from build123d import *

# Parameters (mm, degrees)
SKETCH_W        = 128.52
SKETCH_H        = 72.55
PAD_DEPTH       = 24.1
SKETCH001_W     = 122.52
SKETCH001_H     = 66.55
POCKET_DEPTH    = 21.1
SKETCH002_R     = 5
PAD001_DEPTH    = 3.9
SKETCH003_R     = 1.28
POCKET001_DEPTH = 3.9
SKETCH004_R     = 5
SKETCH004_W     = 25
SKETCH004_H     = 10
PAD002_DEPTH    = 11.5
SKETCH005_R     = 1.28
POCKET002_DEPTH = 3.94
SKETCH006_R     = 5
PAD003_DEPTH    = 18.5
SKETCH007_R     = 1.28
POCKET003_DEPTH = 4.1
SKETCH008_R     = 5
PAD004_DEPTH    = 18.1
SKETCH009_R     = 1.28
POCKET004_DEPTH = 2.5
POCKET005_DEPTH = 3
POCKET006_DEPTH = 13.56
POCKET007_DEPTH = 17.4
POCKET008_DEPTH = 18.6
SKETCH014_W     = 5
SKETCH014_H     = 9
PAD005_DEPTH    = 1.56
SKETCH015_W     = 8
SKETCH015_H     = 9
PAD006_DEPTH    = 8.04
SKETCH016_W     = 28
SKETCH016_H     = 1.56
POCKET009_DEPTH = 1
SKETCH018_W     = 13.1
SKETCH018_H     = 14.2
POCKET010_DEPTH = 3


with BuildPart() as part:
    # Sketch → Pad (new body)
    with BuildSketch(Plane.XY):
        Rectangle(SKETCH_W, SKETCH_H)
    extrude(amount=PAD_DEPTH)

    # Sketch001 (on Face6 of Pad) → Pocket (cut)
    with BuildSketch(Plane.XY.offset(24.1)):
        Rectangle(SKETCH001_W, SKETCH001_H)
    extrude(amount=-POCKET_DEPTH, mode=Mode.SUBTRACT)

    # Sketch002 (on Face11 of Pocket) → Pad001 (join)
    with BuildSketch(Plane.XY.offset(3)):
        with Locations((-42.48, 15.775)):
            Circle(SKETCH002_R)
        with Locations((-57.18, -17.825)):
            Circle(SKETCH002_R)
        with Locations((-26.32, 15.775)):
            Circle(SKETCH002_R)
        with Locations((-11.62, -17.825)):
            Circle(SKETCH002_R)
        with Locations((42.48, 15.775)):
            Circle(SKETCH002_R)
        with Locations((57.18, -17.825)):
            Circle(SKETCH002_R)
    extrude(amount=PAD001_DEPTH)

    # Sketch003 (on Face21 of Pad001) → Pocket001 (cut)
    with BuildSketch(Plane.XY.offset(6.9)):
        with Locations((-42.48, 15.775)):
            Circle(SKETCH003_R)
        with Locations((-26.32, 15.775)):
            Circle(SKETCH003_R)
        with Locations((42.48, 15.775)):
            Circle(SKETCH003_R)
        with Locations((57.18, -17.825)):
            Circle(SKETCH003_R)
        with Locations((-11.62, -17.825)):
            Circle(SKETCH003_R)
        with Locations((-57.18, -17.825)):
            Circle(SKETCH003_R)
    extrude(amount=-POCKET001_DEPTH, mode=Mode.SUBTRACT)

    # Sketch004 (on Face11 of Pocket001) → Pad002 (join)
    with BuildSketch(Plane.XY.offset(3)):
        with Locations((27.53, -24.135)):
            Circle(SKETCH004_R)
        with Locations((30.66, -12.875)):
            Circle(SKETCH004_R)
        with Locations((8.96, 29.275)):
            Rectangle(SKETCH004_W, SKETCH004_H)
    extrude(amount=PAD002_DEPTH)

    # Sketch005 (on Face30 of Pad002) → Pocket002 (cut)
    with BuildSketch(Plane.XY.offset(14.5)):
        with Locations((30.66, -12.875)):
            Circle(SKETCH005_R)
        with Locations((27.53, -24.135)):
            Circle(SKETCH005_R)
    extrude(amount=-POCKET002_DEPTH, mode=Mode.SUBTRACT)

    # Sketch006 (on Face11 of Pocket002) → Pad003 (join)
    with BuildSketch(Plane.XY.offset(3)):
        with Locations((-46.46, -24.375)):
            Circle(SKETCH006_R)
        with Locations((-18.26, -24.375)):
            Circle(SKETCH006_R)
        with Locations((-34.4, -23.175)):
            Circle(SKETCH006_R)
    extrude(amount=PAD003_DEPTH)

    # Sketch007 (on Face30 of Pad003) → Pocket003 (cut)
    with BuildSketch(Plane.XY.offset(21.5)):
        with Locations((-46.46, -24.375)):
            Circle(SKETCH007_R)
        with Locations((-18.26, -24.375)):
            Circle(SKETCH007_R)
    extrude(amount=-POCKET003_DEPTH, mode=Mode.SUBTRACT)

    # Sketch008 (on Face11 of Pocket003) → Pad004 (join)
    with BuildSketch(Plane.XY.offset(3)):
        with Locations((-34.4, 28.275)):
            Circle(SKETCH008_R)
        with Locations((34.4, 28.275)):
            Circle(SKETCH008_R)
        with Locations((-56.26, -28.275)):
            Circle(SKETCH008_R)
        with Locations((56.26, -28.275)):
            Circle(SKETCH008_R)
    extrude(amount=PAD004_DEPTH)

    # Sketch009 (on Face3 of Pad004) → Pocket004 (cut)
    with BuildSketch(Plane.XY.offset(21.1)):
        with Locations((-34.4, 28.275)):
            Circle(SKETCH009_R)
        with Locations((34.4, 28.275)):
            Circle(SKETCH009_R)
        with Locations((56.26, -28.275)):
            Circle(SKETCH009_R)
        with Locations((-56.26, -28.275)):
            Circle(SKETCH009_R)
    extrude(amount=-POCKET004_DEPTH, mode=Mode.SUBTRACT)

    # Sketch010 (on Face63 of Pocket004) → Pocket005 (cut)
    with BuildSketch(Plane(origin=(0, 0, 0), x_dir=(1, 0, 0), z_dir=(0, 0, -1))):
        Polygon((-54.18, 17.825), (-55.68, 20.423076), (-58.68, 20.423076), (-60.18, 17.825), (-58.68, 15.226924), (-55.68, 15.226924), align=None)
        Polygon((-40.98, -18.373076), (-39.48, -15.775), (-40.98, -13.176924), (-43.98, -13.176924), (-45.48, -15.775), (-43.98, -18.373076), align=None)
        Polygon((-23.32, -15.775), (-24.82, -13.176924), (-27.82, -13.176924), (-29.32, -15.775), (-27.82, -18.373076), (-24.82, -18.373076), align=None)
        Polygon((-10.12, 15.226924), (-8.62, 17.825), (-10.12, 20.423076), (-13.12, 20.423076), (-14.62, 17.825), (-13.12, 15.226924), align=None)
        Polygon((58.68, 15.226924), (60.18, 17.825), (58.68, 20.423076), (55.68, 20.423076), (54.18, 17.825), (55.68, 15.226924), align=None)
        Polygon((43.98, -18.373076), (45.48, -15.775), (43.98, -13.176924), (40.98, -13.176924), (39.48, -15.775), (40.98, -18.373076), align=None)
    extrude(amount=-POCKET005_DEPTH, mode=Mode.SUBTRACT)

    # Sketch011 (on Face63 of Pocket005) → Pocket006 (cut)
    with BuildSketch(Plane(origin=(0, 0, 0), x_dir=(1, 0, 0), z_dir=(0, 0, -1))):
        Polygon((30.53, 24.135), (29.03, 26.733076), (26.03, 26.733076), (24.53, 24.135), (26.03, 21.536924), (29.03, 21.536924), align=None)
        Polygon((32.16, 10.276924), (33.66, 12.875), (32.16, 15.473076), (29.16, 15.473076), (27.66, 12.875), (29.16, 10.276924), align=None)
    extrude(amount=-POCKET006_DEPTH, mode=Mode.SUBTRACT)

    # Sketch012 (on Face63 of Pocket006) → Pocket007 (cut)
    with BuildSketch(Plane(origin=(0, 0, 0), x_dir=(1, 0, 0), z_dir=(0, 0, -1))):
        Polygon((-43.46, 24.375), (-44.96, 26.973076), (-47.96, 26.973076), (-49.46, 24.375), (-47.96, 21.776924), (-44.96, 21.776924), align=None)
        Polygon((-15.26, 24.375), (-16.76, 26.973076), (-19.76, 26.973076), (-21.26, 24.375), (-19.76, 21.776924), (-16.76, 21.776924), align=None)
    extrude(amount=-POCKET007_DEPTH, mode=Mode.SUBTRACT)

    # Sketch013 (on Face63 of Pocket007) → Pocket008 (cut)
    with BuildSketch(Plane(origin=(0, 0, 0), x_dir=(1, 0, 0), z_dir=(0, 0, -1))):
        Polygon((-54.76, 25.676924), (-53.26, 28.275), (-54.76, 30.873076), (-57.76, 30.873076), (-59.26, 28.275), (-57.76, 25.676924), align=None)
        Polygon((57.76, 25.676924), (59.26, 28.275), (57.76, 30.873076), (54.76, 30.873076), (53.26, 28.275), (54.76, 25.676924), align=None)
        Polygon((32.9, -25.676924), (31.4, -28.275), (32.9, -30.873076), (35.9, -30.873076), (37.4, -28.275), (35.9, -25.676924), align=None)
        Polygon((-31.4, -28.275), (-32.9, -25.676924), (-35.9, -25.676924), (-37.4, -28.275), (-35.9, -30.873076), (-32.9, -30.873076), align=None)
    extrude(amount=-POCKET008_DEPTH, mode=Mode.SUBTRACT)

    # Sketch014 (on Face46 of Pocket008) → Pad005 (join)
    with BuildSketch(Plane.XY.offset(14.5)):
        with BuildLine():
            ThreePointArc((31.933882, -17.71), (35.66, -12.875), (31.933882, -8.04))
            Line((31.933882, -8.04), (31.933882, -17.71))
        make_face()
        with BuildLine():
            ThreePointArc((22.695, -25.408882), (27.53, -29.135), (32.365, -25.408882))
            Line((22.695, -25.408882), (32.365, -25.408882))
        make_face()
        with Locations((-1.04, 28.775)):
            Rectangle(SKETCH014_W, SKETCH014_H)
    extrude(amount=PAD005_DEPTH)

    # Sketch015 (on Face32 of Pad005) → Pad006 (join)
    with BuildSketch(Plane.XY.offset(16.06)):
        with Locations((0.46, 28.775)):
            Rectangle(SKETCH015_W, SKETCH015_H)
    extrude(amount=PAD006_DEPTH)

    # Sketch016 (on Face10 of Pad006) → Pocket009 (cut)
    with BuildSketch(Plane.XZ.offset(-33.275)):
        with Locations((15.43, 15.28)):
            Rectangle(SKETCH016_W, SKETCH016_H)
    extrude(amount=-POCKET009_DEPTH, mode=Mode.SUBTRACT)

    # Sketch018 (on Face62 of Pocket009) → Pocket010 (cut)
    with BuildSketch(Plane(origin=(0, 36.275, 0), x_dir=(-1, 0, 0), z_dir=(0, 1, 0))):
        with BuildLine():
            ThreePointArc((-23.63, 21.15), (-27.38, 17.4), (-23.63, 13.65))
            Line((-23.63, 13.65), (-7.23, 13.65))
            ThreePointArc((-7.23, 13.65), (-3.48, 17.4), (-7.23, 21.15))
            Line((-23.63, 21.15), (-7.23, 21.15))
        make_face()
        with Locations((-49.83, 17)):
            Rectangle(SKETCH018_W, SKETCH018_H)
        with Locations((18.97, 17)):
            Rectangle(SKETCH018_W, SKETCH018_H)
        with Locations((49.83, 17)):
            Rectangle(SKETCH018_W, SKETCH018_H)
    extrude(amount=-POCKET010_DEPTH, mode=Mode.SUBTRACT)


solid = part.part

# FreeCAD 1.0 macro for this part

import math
import FreeCAD as App
import Part
import Sketcher
from FreeCAD import Vector
Q = App.Units.Quantity


def add_polygon(sketch, points):
    """Adds a closed chain of lines whose ends are joined by coincident constraints."""
    first, n = sketch.GeometryCount, len(points)
    for a, b in zip(points, points[1:] + points[:1]):
        sketch.addGeometry(Part.LineSegment(App.Vector(*a, 0), App.Vector(*b, 0)), False)
    for i in range(n):
        sketch.addConstraint(Sketcher.Constraint("Coincident", first + i, 2, first + (i + 1) % n, 1))

doc = App.newDocument("Part")
body = doc.addObject("PartDesign::Body", "Body")

sketch1 = doc.addObject("Sketcher::SketchObject", "Sketch")
body.addObject(sketch1)
sketch1.AttachmentSupport = (doc.XY_Plane, [""])
sketch1.MapMode = "FlatFace"
add_polygon(sketch1, [(-64, 36), (-64, -36), (64, -36), (64, 36)])
sketch1.addConstraint([
    Sketcher.Constraint("Vertical", 0),
    Sketcher.Constraint("Horizontal", 1),
    Sketcher.Constraint("Vertical", 2),
    Sketcher.Constraint("Horizontal", 3),
    Sketcher.Constraint("Symmetric", 0, 2, 2, 2, -1, 1),
    Sketcher.Constraint("DistanceX", 1, 1, 1, 2, Q("128.52 mm")),
    Sketcher.Constraint("DistanceY", 0, 2, 0, 1, Q("72.55 mm")),
])
pad1 = doc.addObject("PartDesign::Pad", "Pad")
body.addObject(pad1)
pad1.Profile = sketch1
pad1.Length = 24.1

sketch2 = doc.addObject("Sketcher::SketchObject", "Sketch001")
body.addObject(sketch2)
sketch2.AttachmentSupport = (doc.XY_Plane, [""])
sketch2.MapMode = "FlatFace"
sketch2.AttachmentOffset = App.Placement(Vector(0, 0, 24.1), App.Rotation())
add_polygon(sketch2, [(-61, 33), (-61, -33), (61, -33), (61, 33)])
sketch2.addConstraint([
    Sketcher.Constraint("Vertical", 0),
    Sketcher.Constraint("Horizontal", 1),
    Sketcher.Constraint("Vertical", 2),
    Sketcher.Constraint("Horizontal", 3),
    Sketcher.Constraint("Symmetric", 0, 2, 2, 2, -1, 1),
    Sketcher.Constraint("DistanceX", 1, 1, 1, 2, Q("122.52 mm")),
    Sketcher.Constraint("DistanceY", 0, 2, 0, 1, Q("66.55 mm")),
])
pocket1 = doc.addObject("PartDesign::Pocket", "Pocket")
body.addObject(pocket1)
pocket1.Profile = sketch2
pocket1.Length = 21.1

sketch3 = doc.addObject("Sketcher::SketchObject", "Sketch002")
body.addObject(sketch3)
sketch3.AttachmentSupport = (doc.XY_Plane, [""])
sketch3.MapMode = "FlatFace"
sketch3.AttachmentOffset = App.Placement(Vector(0, 0, 3), App.Rotation())
sketch3.addGeometry([
    Part.Circle(Vector(-42, 16, 0), Vector(0, 0, 1), 5),
    Part.Circle(Vector(-57, -18, 0), Vector(0, 0, 1), 5),
    Part.Circle(Vector(-26, 16, 0), Vector(0, 0, 1), 5),
    Part.Circle(Vector(-12, -18, 0), Vector(0, 0, 1), 5),
    Part.Circle(Vector(42, 16, 0), Vector(0, 0, 1), 5),
    Part.Circle(Vector(57, -18, 0), Vector(0, 0, 1), 5),
], False)
sketch3.addConstraint([
    Sketcher.Constraint("Equal", 0, 1),
    Sketcher.Constraint("Equal", 1, 2),
    Sketcher.Constraint("Equal", 2, 3),
    Sketcher.Constraint("Equal", 3, 4),
    Sketcher.Constraint("Equal", 4, 5),
    Sketcher.Constraint("Symmetric", 0, 3, 4, 3, -2),
    Sketcher.Constraint("Symmetric", 1, 3, 5, 3, -2),
    Sketcher.Constraint("Horizontal", 0, 3, 2, 3),
    Sketcher.Constraint("Horizontal", 1, 3, 3, 3),
    Sketcher.Constraint("Diameter", 0, Q("10 mm")),
    Sketcher.Constraint("DistanceX", 1, 3, 0, 3, Q("14.7 mm")),
    Sketcher.Constraint("DistanceY", 1, 3, 0, 3, Q("33.6 mm")),
    Sketcher.Constraint("DistanceX", 2, 3, 3, 3, Q("14.7 mm")),
    Sketcher.Constraint("DistanceX", 3, 3, 4, 3, Q("54.1 mm")),
    Sketcher.Constraint("DistanceX", 0, 3, -1, 1, Q("42.48 mm")),
    Sketcher.Constraint("DistanceY", -1, 1, 0, 3, Q("15.775 mm")),
])
pad2 = doc.addObject("PartDesign::Pad", "Pad001")
body.addObject(pad2)
pad2.Profile = sketch3
pad2.Length = 3.9

sketch4 = doc.addObject("Sketcher::SketchObject", "Sketch003")
body.addObject(sketch4)
sketch4.AttachmentSupport = (doc.XY_Plane, [""])
sketch4.MapMode = "FlatFace"
sketch4.AttachmentOffset = App.Placement(Vector(0, 0, 6.9), App.Rotation())
sketch4.addGeometry([
    Part.Circle(Vector(-42.5, 15.8, 0), Vector(0, 0, 1), 1.3),
    Part.Circle(Vector(-26.3, 15.8, 0), Vector(0, 0, 1), 1.3),
    Part.Circle(Vector(42.5, 15.8, 0), Vector(0, 0, 1), 1.3),
    Part.Circle(Vector(57.2, -17.8, 0), Vector(0, 0, 1), 1.3),
    Part.Circle(Vector(-11.6, -17.8, 0), Vector(0, 0, 1), 1.3),
    Part.Circle(Vector(-57.2, -17.8, 0), Vector(0, 0, 1), 1.3),
], False)
sketch4.addConstraint([
    Sketcher.Constraint("Equal", 0, 1),
    Sketcher.Constraint("Equal", 1, 2),
    Sketcher.Constraint("Equal", 2, 3),
    Sketcher.Constraint("Equal", 3, 4),
    Sketcher.Constraint("Equal", 4, 5),
    Sketcher.Constraint("Symmetric", 0, 3, 2, 3, -2),
    Sketcher.Constraint("Symmetric", 3, 3, 5, 3, -2),
    Sketcher.Constraint("Horizontal", 0, 3, 1, 3),
    Sketcher.Constraint("Horizontal", 3, 3, 4, 3),
    Sketcher.Constraint("Diameter", 0, Q("2.56 mm")),
    Sketcher.Constraint("DistanceX", 1, 3, 2, 3, Q("68.8 mm")),
    Sketcher.Constraint("DistanceX", 2, 3, 3, 3, Q("14.7 mm")),
    Sketcher.Constraint("DistanceY", 3, 3, 2, 3, Q("33.6 mm")),
    Sketcher.Constraint("DistanceX", 1, 3, 4, 3, Q("14.7 mm")),
    Sketcher.Constraint("DistanceX", 0, 3, -1, 1, Q("42.48 mm")),
    Sketcher.Constraint("DistanceY", -1, 1, 0, 3, Q("15.775 mm")),
])
pocket2 = doc.addObject("PartDesign::Pocket", "Pocket001")
body.addObject(pocket2)
pocket2.Profile = sketch4
pocket2.Length = 3.9

sketch5 = doc.addObject("Sketcher::SketchObject", "Sketch004")
body.addObject(sketch5)
sketch5.AttachmentSupport = (doc.XY_Plane, [""])
sketch5.MapMode = "FlatFace"
sketch5.AttachmentOffset = App.Placement(Vector(0, 0, 3), App.Rotation())
sketch5.addGeometry(Part.Circle(Vector(28, -24, 0), Vector(0, 0, 1), 5), False)
sketch5.addGeometry(Part.Circle(Vector(31, -13, 0), Vector(0, 0, 1), 5), False)
add_polygon(sketch5, [(-4, 34), (-4, 24), (21, 24), (21, 34)])
sketch5.addConstraint([
    Sketcher.Constraint("Vertical", 2),
    Sketcher.Constraint("Horizontal", 3),
    Sketcher.Constraint("Vertical", 4),
    Sketcher.Constraint("Horizontal", 5),
    Sketcher.Constraint("Equal", 0, 1),
    Sketcher.Constraint("Diameter", 0, Q("10 mm")),
    Sketcher.Constraint("DistanceX", 3, 1, 3, 2, Q("25 mm")),
    Sketcher.Constraint("DistanceY", 2, 2, 2, 1, Q("10 mm")),
    Sketcher.Constraint("DistanceX", 2, 2, 1, 3, Q("34.2 mm")),
    Sketcher.Constraint("DistanceX", -1, 1, 0, 3, Q("27.53 mm")),
    Sketcher.Constraint("DistanceX", -1, 1, 1, 3, Q("30.66 mm")),
    Sketcher.Constraint("DistanceY", 0, 3, 1, 3, Q("11.26 mm")),
    Sketcher.Constraint("DistanceY", 1, 3, 2, 2, Q("37.15 mm")),
    Sketcher.Constraint("DistanceY", 0, 3, -1, 1, Q("24.135 mm")),
])
pad3 = doc.addObject("PartDesign::Pad", "Pad002")
body.addObject(pad3)
pad3.Profile = sketch5
pad3.Length = 11.5

sketch6 = doc.addObject("Sketcher::SketchObject", "Sketch005")
body.addObject(sketch6)
sketch6.AttachmentSupport = (doc.XY_Plane, [""])
sketch6.MapMode = "FlatFace"
sketch6.AttachmentOffset = App.Placement(Vector(0, 0, 14.5), App.Rotation())
sketch6.addGeometry([
    Part.Circle(Vector(30.7, -12.9, 0), Vector(0, 0, 1), 1.3),
    Part.Circle(Vector(27.5, -24.1, 0), Vector(0, 0, 1), 1.3),
], False)
sketch6.addConstraint([
    Sketcher.Constraint("Equal", 0, 1),
    Sketcher.Constraint("Diameter", 0, Q("2.56 mm")),
    Sketcher.Constraint("DistanceX", -1, 1, 0, 3, Q("30.66 mm")),
    Sketcher.Constraint("DistanceX", -1, 1, 1, 3, Q("27.53 mm")),
    Sketcher.Constraint("DistanceY", 1, 3, 0, 3, Q("11.26 mm")),
    Sketcher.Constraint("DistanceY", 0, 3, -1, 1, Q("12.875 mm")),
])
pocket3 = doc.addObject("PartDesign::Pocket", "Pocket002")
body.addObject(pocket3)
pocket3.Profile = sketch6
pocket3.Length = 3.94

sketch7 = doc.addObject("Sketcher::SketchObject", "Sketch006")
body.addObject(sketch7)
sketch7.AttachmentSupport = (doc.XY_Plane, [""])
sketch7.MapMode = "FlatFace"
sketch7.AttachmentOffset = App.Placement(Vector(0, 0, 3), App.Rotation())
sketch7.addGeometry([
    Part.Circle(Vector(-46, -24, 0), Vector(0, 0, 1), 5),
    Part.Circle(Vector(-18, -24, 0), Vector(0, 0, 1), 5),
    Part.Circle(Vector(-34, -23, 0), Vector(0, 0, 1), 5),
], False)
sketch7.addConstraint([
    Sketcher.Constraint("Equal", 0, 1),
    Sketcher.Constraint("Equal", 1, 2),
    Sketcher.Constraint("Horizontal", 0, 3, 1, 3),
    Sketcher.Constraint("Diameter", 0, Q("10 mm")),
    Sketcher.Constraint("DistanceX", 2, 3, -1, 1, Q("34.4 mm")),
    Sketcher.Constraint("DistanceX", 0, 3, 1, 3, Q("28.2 mm")),
    Sketcher.Constraint("DistanceY", 0, 3, 2, 3, Q("1.2 mm")),
    Sketcher.Constraint("DistanceX", 0, 3, -1, 1, Q("46.46 mm")),
    Sketcher.Constraint("DistanceY", 0, 3, -1, 1, Q("24.375 mm")),
])
pad4 = doc.addObject("PartDesign::Pad", "Pad003")
body.addObject(pad4)
pad4.Profile = sketch7
pad4.Length = 18.5

sketch8 = doc.addObject("Sketcher::SketchObject", "Sketch007")
body.addObject(sketch8)
sketch8.AttachmentSupport = (doc.XY_Plane, [""])
sketch8.MapMode = "FlatFace"
sketch8.AttachmentOffset = App.Placement(Vector(0, 0, 21.5), App.Rotation())
sketch8.addGeometry([
    Part.Circle(Vector(-46.5, -24.4, 0), Vector(0, 0, 1), 1.3),
    Part.Circle(Vector(-18.3, -24.4, 0), Vector(0, 0, 1), 1.3),
], False)
sketch8.addConstraint([
    Sketcher.Constraint("Equal", 0, 1),
    Sketcher.Constraint("Horizontal", 0, 3, 1, 3),
    Sketcher.Constraint("Diameter", 0, Q("2.56 mm")),
    Sketcher.Constraint("DistanceX", 0, 3, 1, 3, Q("28.2 mm")),
    Sketcher.Constraint("DistanceX", 0, 3, -1, 1, Q("46.46 mm")),
    Sketcher.Constraint("DistanceY", 0, 3, -1, 1, Q("24.375 mm")),
])
pocket4 = doc.addObject("PartDesign::Pocket", "Pocket003")
body.addObject(pocket4)
pocket4.Profile = sketch8
pocket4.Length = 4.1

sketch9 = doc.addObject("Sketcher::SketchObject", "Sketch008")
body.addObject(sketch9)
sketch9.AttachmentSupport = (doc.XY_Plane, [""])
sketch9.MapMode = "FlatFace"
sketch9.AttachmentOffset = App.Placement(Vector(0, 0, 3), App.Rotation())
sketch9.addGeometry([
    Part.Circle(Vector(-34, 28, 0), Vector(0, 0, 1), 5),
    Part.Circle(Vector(34, 28, 0), Vector(0, 0, 1), 5),
    Part.Circle(Vector(-56, -28, 0), Vector(0, 0, 1), 5),
    Part.Circle(Vector(56, -28, 0), Vector(0, 0, 1), 5),
], False)
sketch9.addConstraint([
    Sketcher.Constraint("Equal", 0, 1),
    Sketcher.Constraint("Equal", 1, 2),
    Sketcher.Constraint("Equal", 2, 3),
    Sketcher.Constraint("Symmetric", 0, 3, 1, 3, -2),
    Sketcher.Constraint("Symmetric", 2, 3, 3, 3, -2),
    Sketcher.Constraint("Diameter", 0, Q("10 mm")),
    Sketcher.Constraint("DistanceX", 0, 3, -1, 1, Q("34.4 mm")),
    Sketcher.Constraint("DistanceX", 2, 3, -1, 1, Q("56.26 mm")),
    Sketcher.Constraint("DistanceY", 2, 3, 0, 3, Q("56.55 mm")),
    Sketcher.Constraint("DistanceY", -1, 1, 0, 3, Q("28.275 mm")),
])
pad5 = doc.addObject("PartDesign::Pad", "Pad004")
body.addObject(pad5)
pad5.Profile = sketch9
pad5.Length = 18.1

sketch10 = doc.addObject("Sketcher::SketchObject", "Sketch009")
body.addObject(sketch10)
sketch10.AttachmentSupport = (doc.XY_Plane, [""])
sketch10.MapMode = "FlatFace"
sketch10.AttachmentOffset = App.Placement(Vector(0, 0, 21.1), App.Rotation())
sketch10.addGeometry([
    Part.Circle(Vector(-34.4, 28.3, 0), Vector(0, 0, 1), 1.3),
    Part.Circle(Vector(34.4, 28.3, 0), Vector(0, 0, 1), 1.3),
    Part.Circle(Vector(56.3, -28.3, 0), Vector(0, 0, 1), 1.3),
    Part.Circle(Vector(-56.3, -28.3, 0), Vector(0, 0, 1), 1.3),
], False)
sketch10.addConstraint([
    Sketcher.Constraint("Equal", 0, 1),
    Sketcher.Constraint("Equal", 1, 2),
    Sketcher.Constraint("Equal", 2, 3),
    Sketcher.Constraint("Symmetric", 0, 3, 1, 3, -2),
    Sketcher.Constraint("Symmetric", 2, 3, 3, 3, -2),
    Sketcher.Constraint("Diameter", 0, Q("2.56 mm")),
    Sketcher.Constraint("DistanceX", 0, 3, -1, 1, Q("34.4 mm")),
    Sketcher.Constraint("DistanceX", -1, 1, 2, 3, Q("56.26 mm")),
    Sketcher.Constraint("DistanceY", 2, 3, 1, 3, Q("56.55 mm")),
    Sketcher.Constraint("DistanceY", -1, 1, 0, 3, Q("28.275 mm")),
])
pocket5 = doc.addObject("PartDesign::Pocket", "Pocket004")
body.addObject(pocket5)
pocket5.Profile = sketch10
pocket5.Length = 2.5

sketch11 = doc.addObject("Sketcher::SketchObject", "Sketch010")
body.addObject(sketch11)
sketch11.AttachmentSupport = (doc.XY_Plane, [""])
sketch11.MapMode = "FlatFace"
add_polygon(sketch11, [(-54.2, -17.8), (-55.7, -20.4), (-58.7, -20.4), (-60.2, -17.8), (-58.7, -15.2), (-55.7, -15.2)])
add_polygon(sketch11, [(-41, 18.4), (-39.5, 15.8), (-41, 13.2), (-44, 13.2), (-45.5, 15.8), (-44, 18.4)])
add_polygon(sketch11, [(-23.3, 15.8), (-24.8, 13.2), (-27.8, 13.2), (-29.3, 15.8), (-27.8, 18.4), (-24.8, 18.4)])
add_polygon(sketch11, [(-10.1, -15.2), (-8.6, -17.8), (-10.1, -20.4), (-13.1, -20.4), (-14.6, -17.8), (-13.1, -15.2)])
add_polygon(sketch11, [(58.7, -15.2), (60.2, -17.8), (58.7, -20.4), (55.7, -20.4), (54.2, -17.8), (55.7, -15.2)])
add_polygon(sketch11, [(44, 18.4), (45.5, 15.8), (44, 13.2), (41, 13.2), (39.5, 15.8), (41, 18.4)])
sketch11.addConstraint([
    Sketcher.Constraint("Horizontal", 1),
    Sketcher.Constraint("Horizontal", 4),
    Sketcher.Constraint("Horizontal", 8),
    Sketcher.Constraint("Horizontal", 11),
    Sketcher.Constraint("Horizontal", 13),
    Sketcher.Constraint("Horizontal", 16),
    Sketcher.Constraint("Horizontal", 20),
    Sketcher.Constraint("Horizontal", 23),
    Sketcher.Constraint("Horizontal", 26),
    Sketcher.Constraint("Horizontal", 29),
    Sketcher.Constraint("Horizontal", 32),
    Sketcher.Constraint("Horizontal", 35),
    Sketcher.Constraint("Symmetric", 2, 2, 24, 2, -2),
    Sketcher.Constraint("Symmetric", 1, 2, 25, 2, -2),
    Sketcher.Constraint("Symmetric", 5, 2, 27, 2, -2),
    Sketcher.Constraint("Symmetric", 4, 2, 28, 2, -2),
    Sketcher.Constraint("Symmetric", 9, 2, 30, 2, -2),
    Sketcher.Constraint("Symmetric", 8, 2, 31, 2, -2),
    Sketcher.Constraint("Symmetric", 6, 2, 33, 2, -2),
    Sketcher.Constraint("Symmetric", 11, 2, 34, 2, -2),
    Sketcher.Constraint("Parallel", 0, 3),
    Sketcher.Constraint("Parallel", 2, 5),
    Sketcher.Constraint("Parallel", 5, 6),
    Sketcher.Constraint("Parallel", 3, 7),
    Sketcher.Constraint("Parallel", 6, 9),
    Sketcher.Constraint("Parallel", 7, 10),
    Sketcher.Constraint("Parallel", 10, 12),
    Sketcher.Constraint("Parallel", 9, 14),
    Sketcher.Constraint("Parallel", 12, 15),
    Sketcher.Constraint("Parallel", 14, 17),
    Sketcher.Constraint("Parallel", 17, 18),
    Sketcher.Constraint("Parallel", 15, 19),
    Sketcher.Constraint("Parallel", 18, 21),
    Sketcher.Constraint("Parallel", 19, 22),
    Sketcher.Constraint("Parallel", 21, 24),
    Sketcher.Constraint("Parallel", 22, 25),
    Sketcher.Constraint("Parallel", 24, 27),
    Sketcher.Constraint("Parallel", 27, 30),
    Sketcher.Constraint("Parallel", 30, 33),
    Sketcher.Constraint("Horizontal", 2, 2, 5, 2),
    Sketcher.Constraint("Horizontal", 6, 2, 9, 2),
    Sketcher.Constraint("Horizontal", 8, 2, 12, 2),
    Sketcher.Constraint("Horizontal", 9, 2, 14, 2),
    Sketcher.Constraint("Horizontal", 11, 2, 15, 2),
    Sketcher.Constraint("Horizontal", 14, 2, 17, 2),
    Sketcher.Constraint("Horizontal", 5, 2, 18, 2),
    Sketcher.Constraint("Horizontal", 1, 2, 19, 2),
    Sketcher.Constraint("Horizontal", 18, 2, 21, 2),
    Sketcher.Constraint("Horizontal", 4, 2, 22, 2),
    Sketcher.Constraint("Vertical", 1, 2, 3, 2),
    Sketcher.Constraint("Vertical", 8, 2, 10, 2),
    Sketcher.Constraint("Equal", 4, 8),
    Sketcher.Constraint("Equal", 11, 13),
    Sketcher.Constraint("Equal", 16, 20),
    Sketcher.Constraint("Equal", 5, 6),
    Sketcher.Constraint("DistanceX", 1, 2, 1, 1, Q("3 mm")),
    Sketcher.Constraint("Angle", 0, Q("-120.000002 deg")),
    Sketcher.Constraint("Distance", 0, Q("3 mm")),
    Sketcher.Constraint("DistanceX", 4, 2, 6, 2, Q("16.2 mm")),
    Sketcher.Constraint("DistanceY", 5, 2, 6, 2, Q("33.6 mm")),
    Sketcher.Constraint("DistanceX", 12, 2, 18, 2, Q("16.2 mm")),
    Sketcher.Constraint("DistanceX", 18, 2, 24, 2, Q("68.8 mm")),
    Sketcher.Constraint("DistanceX", 0, 2, -1, 1, Q("55.68 mm")),
    Sketcher.Constraint("DistanceY", 2, 2, -1, 1, Q("17.825 mm")),
])
pocket6 = doc.addObject("PartDesign::Pocket", "Pocket005")
body.addObject(pocket6)
pocket6.Profile = sketch11
pocket6.Length = 3
pocket6.Reversed = True

sketch12 = doc.addObject("Sketcher::SketchObject", "Sketch011")
body.addObject(sketch12)
sketch12.AttachmentSupport = (doc.XY_Plane, [""])
sketch12.MapMode = "FlatFace"
add_polygon(sketch12, [(30.5, -24.1), (29, -26.7), (26, -26.7), (24.5, -24.1), (26, -21.5), (29, -21.5)])
add_polygon(sketch12, [(32.2, -10.3), (33.7, -12.9), (32.2, -15.5), (29.2, -15.5), (27.7, -12.9), (29.2, -10.3)])
sketch12.addConstraint([
    Sketcher.Constraint("Horizontal", 1),
    Sketcher.Constraint("Horizontal", 4),
    Sketcher.Constraint("Horizontal", 8),
    Sketcher.Constraint("Horizontal", 11),
    Sketcher.Constraint("Parallel", 0, 3),
    Sketcher.Constraint("Parallel", 2, 5),
    Sketcher.Constraint("Parallel", 5, 6),
    Sketcher.Constraint("Parallel", 3, 7),
    Sketcher.Constraint("Parallel", 6, 9),
    Sketcher.Constraint("Parallel", 7, 10),
    Sketcher.Constraint("Horizontal", 2, 2, 5, 2),
    Sketcher.Constraint("Horizontal", 6, 2, 9, 2),
    Sketcher.Constraint("Vertical", 1, 2, 3, 2),
    Sketcher.Constraint("Vertical", 0, 2, 4, 2),
    Sketcher.Constraint("Vertical", 8, 2, 10, 2),
    Sketcher.Constraint("Equal", 4, 8),
    Sketcher.Constraint("Equal", 5, 6),
    Sketcher.Constraint("DistanceX", 1, 2, 1, 1, Q("3 mm")),
    Sketcher.Constraint("Angle", 0, Q("-120.000002 deg")),
    Sketcher.Constraint("Distance", 0, Q("3 mm")),
    Sketcher.Constraint("DistanceX", -1, 1, 0, 2, Q("29.03 mm")),
    Sketcher.Constraint("DistanceX", -1, 1, 6, 2, Q("33.66 mm")),
    Sketcher.Constraint("DistanceY", 5, 2, 6, 2, Q("11.26 mm")),
    Sketcher.Constraint("DistanceY", 2, 2, -1, 1, Q("24.135 mm")),
])
pocket7 = doc.addObject("PartDesign::Pocket", "Pocket006")
body.addObject(pocket7)
pocket7.Profile = sketch12
pocket7.Length = 13.56
pocket7.Reversed = True

sketch13 = doc.addObject("Sketcher::SketchObject", "Sketch012")
body.addObject(sketch13)
sketch13.AttachmentSupport = (doc.XY_Plane, [""])
sketch13.MapMode = "FlatFace"
add_polygon(sketch13, [(-43.5, -24.4), (-45, -27), (-48, -27), (-49.5, -24.4), (-48, -21.8), (-45, -21.8)])
add_polygon(sketch13, [(-15.3, -24.4), (-16.8, -27), (-19.8, -27), (-21.3, -24.4), (-19.8, -21.8), (-16.8, -21.8)])
sketch13.addConstraint([
    Sketcher.Constraint("Horizontal", 1),
    Sketcher.Constraint("Horizontal", 4),
    Sketcher.Constraint("Horizontal", 7),
    Sketcher.Constraint("Horizontal", 10),
    Sketcher.Constraint("Parallel", 0, 3),
    Sketcher.Constraint("Parallel", 2, 5),
    Sketcher.Constraint("Parallel", 3, 6),
    Sketcher.Constraint("Parallel", 5, 8),
    Sketcher.Constraint("Parallel", 6, 9),
    Sketcher.Constraint("Parallel", 8, 11),
    Sketcher.Constraint("Horizontal", 2, 2, 5, 2),
    Sketcher.Constraint("Horizontal", 1, 2, 6, 2),
    Sketcher.Constraint("Horizontal", 5, 2, 8, 2),
    Sketcher.Constraint("Horizontal", 4, 2, 9, 2),
    Sketcher.Constraint("Horizontal", 8, 2, 11, 2),
    Sketcher.Constraint("Vertical", 1, 2, 3, 2),
    Sketcher.Constraint("Vertical", 0, 2, 4, 2),
    Sketcher.Constraint("Equal", 4, 7),
    Sketcher.Constraint("DistanceX", 1, 2, 1, 1, Q("3 mm")),
    Sketcher.Constraint("Angle", 0, Q("-120.000002 deg")),
    Sketcher.Constraint("Distance", 0, Q("3 mm")),
    Sketcher.Constraint("DistanceX", 5, 2, 6, 2, Q("26.7 mm")),
    Sketcher.Constraint("DistanceX", 0, 2, -1, 1, Q("44.96 mm")),
    Sketcher.Constraint("DistanceY", 2, 2, -1, 1, Q("24.375 mm")),
])
pocket8 = doc.addObject("PartDesign::Pocket", "Pocket007")
body.addObject(pocket8)
pocket8.Profile = sketch13
pocket8.Length = 17.4
pocket8.Reversed = True

sketch14 = doc.addObject("Sketcher::SketchObject", "Sketch013")
body.addObject(sketch14)
sketch14.AttachmentSupport = (doc.XY_Plane, [""])
sketch14.MapMode = "FlatFace"
add_polygon(sketch14, [(-54.8, -25.7), (-53.3, -28.3), (-54.8, -30.9), (-57.8, -30.9), (-59.3, -28.3), (-57.8, -25.7)])
add_polygon(sketch14, [(57.8, -25.7), (59.3, -28.3), (57.8, -30.9), (54.8, -30.9), (53.3, -28.3), (54.8, -25.7)])
add_polygon(sketch14, [(32.9, 25.7), (31.4, 28.3), (32.9, 30.9), (35.9, 30.9), (37.4, 28.3), (35.9, 25.7)])
add_polygon(sketch14, [(-31.4, 28.3), (-32.9, 25.7), (-35.9, 25.7), (-37.4, 28.3), (-35.9, 30.9), (-32.9, 30.9)])
sketch14.addConstraint([
    Sketcher.Constraint("Horizontal", 2),
    Sketcher.Constraint("Horizontal", 5),
    Sketcher.Constraint("Horizontal", 8),
    Sketcher.Constraint("Horizontal", 11),
    Sketcher.Constraint("Horizontal", 14),
    Sketcher.Constraint("Horizontal", 17),
    Sketcher.Constraint("Horizontal", 19),
    Sketcher.Constraint("Horizontal", 22),
    Sketcher.Constraint("Symmetric", 3, 2, 6, 2, -2),
    Sketcher.Constraint("Symmetric", 2, 2, 7, 2, -2),
    Sketcher.Constraint("Symmetric", 0, 2, 9, 2, -2),
    Sketcher.Constraint("Symmetric", 5, 2, 10, 2, -2),
    Sketcher.Constraint("Symmetric", 17, 2, 18, 2, -2),
    Sketcher.Constraint("Symmetric", 15, 2, 20, 2, -2),
    Sketcher.Constraint("Symmetric", 14, 2, 21, 2, -2),
    Sketcher.Constraint("Symmetric", 12, 2, 23, 2, -2),
    Sketcher.Constraint("Parallel", 0, 3),
    Sketcher.Constraint("Parallel", 1, 4),
    Sketcher.Constraint("Parallel", 3, 6),
    Sketcher.Constraint("Parallel", 4, 7),
    Sketcher.Constraint("Parallel", 6, 9),
    Sketcher.Constraint("Parallel", 9, 12),
    Sketcher.Constraint("Parallel", 10, 13),
    Sketcher.Constraint("Parallel", 12, 15),
    Sketcher.Constraint("Parallel", 13, 16),
    Sketcher.Constraint("Parallel", 15, 20),
    Sketcher.Constraint("Parallel", 20, 23),
    Sketcher.Constraint("Horizontal", 0, 2, 3, 2),
    Sketcher.Constraint("Horizontal", 12, 2, 15, 2),
    Sketcher.Constraint("Vertical", 2, 2, 4, 2),
    Sketcher.Constraint("Vertical", 14, 2, 16, 2),
    Sketcher.Constraint("Equal", 11, 14),
    Sketcher.Constraint("Equal", 10, 12),
    Sketcher.Constraint("DistanceX", 2, 2, 2, 1, Q("3 mm")),
    Sketcher.Constraint("Angle", 0, Q("-59.999998 deg")),
    Sketcher.Constraint("Distance", 0, Q("3 mm")),
    Sketcher.Constraint("DistanceX", -1, 1, 12, 2, Q("31.4 mm")),
    Sketcher.Constraint("DistanceX", 0, 2, -1, 1, Q("53.26 mm")),
    Sketcher.Constraint("DistanceY", 9, 2, 12, 2, Q("56.55 mm")),
    Sketcher.Constraint("DistanceY", 0, 2, -1, 1, Q("28.275 mm")),
])
pocket9 = doc.addObject("PartDesign::Pocket", "Pocket008")
body.addObject(pocket9)
pocket9.Profile = sketch14
pocket9.Length = 18.6
pocket9.Reversed = True

sketch15 = doc.addObject("Sketcher::SketchObject", "Sketch014")
body.addObject(sketch15)
sketch15.AttachmentSupport = (doc.XY_Plane, [""])
sketch15.MapMode = "FlatFace"
sketch15.AttachmentOffset = App.Placement(Vector(0, 0, 14.5), App.Rotation())
sketch15.addGeometry(Part.ArcOfCircle(Part.Circle(Vector(31, -13, 0), Vector(0, 0, 1), 5), math.radians(-75), math.radians(75)), False)
sketch15.addGeometry(Part.LineSegment(Vector(32, -8, 0), Vector(32, -18, 0)), False)
sketch15.addGeometry(Part.ArcOfCircle(Part.Circle(Vector(28, -24, 0), Vector(0, 0, 1), 5), math.radians(-165), math.radians(-15)), False)
sketch15.addGeometry(Part.LineSegment(Vector(32, -25, 0), Vector(23, -25, 0)), False)
add_polygon(sketch15, [(-4, 33), (-4, 24), (1, 24), (1, 33)])
sketch15.addConstraint([
    Sketcher.Constraint("Coincident", 0, 1, 1, 2),
    Sketcher.Constraint("Coincident", 1, 1, 0, 2),
    Sketcher.Constraint("Coincident", 2, 1, 3, 2),
    Sketcher.Constraint("Coincident", 3, 1, 2, 2),
    Sketcher.Constraint("Vertical", 1),
    Sketcher.Constraint("Horizontal", 3),
    Sketcher.Constraint("Vertical", 4),
    Sketcher.Constraint("Horizontal", 5),
    Sketcher.Constraint("Vertical", 6),
    Sketcher.Constraint("Horizontal", 7),
    Sketcher.Constraint("Equal", 0, 2),
    Sketcher.Constraint("Equal", 3, 1),
    Sketcher.Constraint("Radius", 0, Q("5 mm")),
    Sketcher.Constraint("DistanceX", 5, 1, 5, 2, Q("5 mm")),
    Sketcher.Constraint("DistanceY", 4, 2, 4, 1, Q("9 mm")),
    Sketcher.Constraint("DistanceX", 3, 2, 3, 1, Q("9.67 mm")),
    Sketcher.Constraint("DistanceX", 4, 2, 0, 3, Q("34.2 mm")),
    Sketcher.Constraint("DistanceX", -1, 1, 0, 3, Q("30.66 mm")),
    Sketcher.Constraint("DistanceX", -1, 1, 2, 3, Q("27.53 mm")),
    Sketcher.Constraint("DistanceY", 0, 1, -1, 1, Q("17.71 mm")),
    Sketcher.Constraint("DistanceY", 2, 3, 0, 3, Q("11.26 mm")),
    Sketcher.Constraint("DistanceY", 0, 3, 4, 2, Q("37.15 mm")),
])
pad6 = doc.addObject("PartDesign::Pad", "Pad005")
body.addObject(pad6)
pad6.Profile = sketch15
pad6.Length = 1.56

sketch16 = doc.addObject("Sketcher::SketchObject", "Sketch015")
body.addObject(sketch16)
sketch16.AttachmentSupport = (doc.XY_Plane, [""])
sketch16.MapMode = "FlatFace"
sketch16.AttachmentOffset = App.Placement(Vector(0, 0, 16.06), App.Rotation())
add_polygon(sketch16, [(-4, 33), (-4, 24), (4, 24), (4, 33)])
sketch16.addConstraint([
    Sketcher.Constraint("Vertical", 0),
    Sketcher.Constraint("Horizontal", 1),
    Sketcher.Constraint("Vertical", 2),
    Sketcher.Constraint("Horizontal", 3),
    Sketcher.Constraint("DistanceX", 1, 1, 1, 2, Q("8 mm")),
    Sketcher.Constraint("DistanceY", 0, 2, 0, 1, Q("9 mm")),
    Sketcher.Constraint("DistanceX", 0, 2, -1, 1, Q("3.54 mm")),
    Sketcher.Constraint("DistanceY", -1, 1, 0, 2, Q("24.275 mm")),
])
pad7 = doc.addObject("PartDesign::Pad", "Pad006")
body.addObject(pad7)
pad7.Profile = sketch16
pad7.Length = 8.04

sketch17 = doc.addObject("Sketcher::SketchObject", "Sketch016")
body.addObject(sketch17)
sketch17.AttachmentSupport = (doc.XZ_Plane, [""])
sketch17.MapMode = "FlatFace"
sketch17.AttachmentOffset = App.Placement(Vector(0, 0, -33.275), App.Rotation())
add_polygon(sketch17, [(1.4, 16.1), (1.4, 14.5), (29.4, 14.5), (29.4, 16.1)])
sketch17.addConstraint([
    Sketcher.Constraint("Vertical", 0),
    Sketcher.Constraint("Horizontal", 1),
    Sketcher.Constraint("Vertical", 2),
    Sketcher.Constraint("Horizontal", 3),
    Sketcher.Constraint("DistanceX", 1, 1, 1, 2, Q("28 mm")),
    Sketcher.Constraint("DistanceY", 0, 2, 0, 1, Q("1.56 mm")),
    Sketcher.Constraint("DistanceY", -1, 1, 0, 2, Q("14.5 mm")),
    Sketcher.Constraint("DistanceX", -1, 1, 0, 2, Q("1.43 mm")),
])
pocket10 = doc.addObject("PartDesign::Pocket", "Pocket009")
body.addObject(pocket10)
pocket10.Profile = sketch17
pocket10.Length = 1

sketch18 = doc.addObject("Sketcher::SketchObject", "Sketch017")
body.addObject(sketch18)
sketch18.AttachmentSupport = (doc.XZ_Plane, [""])
sketch18.MapMode = "FlatFace"
sketch18.AttachmentOffset = App.Placement(Vector(0, 0, -36.275), App.Rotation())
sketch18.addGeometry(Part.ArcOfCircle(Part.Circle(Vector(23.6, 17.4, 0), Vector(0, 0, 1), 3.8), math.radians(-90), math.radians(90)), False)
sketch18.addGeometry(Part.LineSegment(Vector(23.6, 13.7, 0), Vector(7.2, 13.7, 0)), False)
sketch18.addGeometry(Part.ArcOfCircle(Part.Circle(Vector(7.2, 17.4, 0), Vector(0, 0, 1), 3.8), math.radians(90), math.radians(270)), False)
sketch18.addGeometry(Part.LineSegment(Vector(7.2, 21.1, 0), Vector(23.6, 21.1, 0)), False)
add_polygon(sketch18, [(56.4, 24.1), (56.4, 9.9), (43.3, 9.9), (43.3, 24.1)])
add_polygon(sketch18, [(-12.4, 24.1), (-12.4, 9.9), (-25.5, 9.9), (-25.5, 24.1)])
add_polygon(sketch18, [(-43.3, 24.1), (-43.3, 9.9), (-56.4, 9.9), (-56.4, 24.1)])
sketch18.addConstraint([
    Sketcher.Constraint("Tangent", 0, 1, 1, 1),
    Sketcher.Constraint("Tangent", 1, 2, 2, 2),
    Sketcher.Constraint("Tangent", 2, 1, 3, 1),
    Sketcher.Constraint("Tangent", 3, 2, 0, 2),
    Sketcher.Constraint("Horizontal", 1),
    Sketcher.Constraint("Horizontal", 3),
    Sketcher.Constraint("Vertical", 4),
    Sketcher.Constraint("Horizontal", 5),
    Sketcher.Constraint("Vertical", 6),
    Sketcher.Constraint("Horizontal", 7),
    Sketcher.Constraint("Vertical", 8),
    Sketcher.Constraint("Horizontal", 9),
    Sketcher.Constraint("Vertical", 10),
    Sketcher.Constraint("Horizontal", 11),
    Sketcher.Constraint("Vertical", 12),
    Sketcher.Constraint("Horizontal", 13),
    Sketcher.Constraint("Vertical", 14),
    Sketcher.Constraint("Horizontal", 15),
    Sketcher.Constraint("Symmetric", 5, 2, 12, 2, -2),
    Sketcher.Constraint("Symmetric", 7, 2, 14, 2, -2),
    Sketcher.Constraint("Horizontal", 5, 2, 8, 2),
    Sketcher.Constraint("Horizontal", 7, 2, 10, 2),
    Sketcher.Constraint("Equal", 7, 9),
    Sketcher.Constraint("Radius", 0, Q("3.75 mm")),
    Sketcher.Constraint("DistanceX", 1, 2, 1, 1, Q("16.4 mm")),
    Sketcher.Constraint("DistanceX", 5, 2, 5, 1, Q("13.1 mm")),
    Sketcher.Constraint("DistanceY", 4, 2, 4, 1, Q("14.2 mm")),
    Sketcher.Constraint("DistanceY", -1, 1, 0, 3, Q("17.4 mm")),
    Sketcher.Constraint("DistanceY", -1, 1, 4, 2, Q("9.9 mm")),
    Sketcher.Constraint("DistanceX", -1, 1, 0, 3, Q("23.63 mm")),
    Sketcher.Constraint("DistanceX", -1, 1, 4, 2, Q("56.38 mm")),
    Sketcher.Constraint("DistanceX", 8, 2, -1, 1, Q("12.42 mm")),
])
pocket11 = doc.addObject("PartDesign::Pocket", "Pocket010")
body.addObject(pocket11)
pocket11.Profile = sketch18
pocket11.Length = 3
pocket11.Reversed = True

doc.recompute()
